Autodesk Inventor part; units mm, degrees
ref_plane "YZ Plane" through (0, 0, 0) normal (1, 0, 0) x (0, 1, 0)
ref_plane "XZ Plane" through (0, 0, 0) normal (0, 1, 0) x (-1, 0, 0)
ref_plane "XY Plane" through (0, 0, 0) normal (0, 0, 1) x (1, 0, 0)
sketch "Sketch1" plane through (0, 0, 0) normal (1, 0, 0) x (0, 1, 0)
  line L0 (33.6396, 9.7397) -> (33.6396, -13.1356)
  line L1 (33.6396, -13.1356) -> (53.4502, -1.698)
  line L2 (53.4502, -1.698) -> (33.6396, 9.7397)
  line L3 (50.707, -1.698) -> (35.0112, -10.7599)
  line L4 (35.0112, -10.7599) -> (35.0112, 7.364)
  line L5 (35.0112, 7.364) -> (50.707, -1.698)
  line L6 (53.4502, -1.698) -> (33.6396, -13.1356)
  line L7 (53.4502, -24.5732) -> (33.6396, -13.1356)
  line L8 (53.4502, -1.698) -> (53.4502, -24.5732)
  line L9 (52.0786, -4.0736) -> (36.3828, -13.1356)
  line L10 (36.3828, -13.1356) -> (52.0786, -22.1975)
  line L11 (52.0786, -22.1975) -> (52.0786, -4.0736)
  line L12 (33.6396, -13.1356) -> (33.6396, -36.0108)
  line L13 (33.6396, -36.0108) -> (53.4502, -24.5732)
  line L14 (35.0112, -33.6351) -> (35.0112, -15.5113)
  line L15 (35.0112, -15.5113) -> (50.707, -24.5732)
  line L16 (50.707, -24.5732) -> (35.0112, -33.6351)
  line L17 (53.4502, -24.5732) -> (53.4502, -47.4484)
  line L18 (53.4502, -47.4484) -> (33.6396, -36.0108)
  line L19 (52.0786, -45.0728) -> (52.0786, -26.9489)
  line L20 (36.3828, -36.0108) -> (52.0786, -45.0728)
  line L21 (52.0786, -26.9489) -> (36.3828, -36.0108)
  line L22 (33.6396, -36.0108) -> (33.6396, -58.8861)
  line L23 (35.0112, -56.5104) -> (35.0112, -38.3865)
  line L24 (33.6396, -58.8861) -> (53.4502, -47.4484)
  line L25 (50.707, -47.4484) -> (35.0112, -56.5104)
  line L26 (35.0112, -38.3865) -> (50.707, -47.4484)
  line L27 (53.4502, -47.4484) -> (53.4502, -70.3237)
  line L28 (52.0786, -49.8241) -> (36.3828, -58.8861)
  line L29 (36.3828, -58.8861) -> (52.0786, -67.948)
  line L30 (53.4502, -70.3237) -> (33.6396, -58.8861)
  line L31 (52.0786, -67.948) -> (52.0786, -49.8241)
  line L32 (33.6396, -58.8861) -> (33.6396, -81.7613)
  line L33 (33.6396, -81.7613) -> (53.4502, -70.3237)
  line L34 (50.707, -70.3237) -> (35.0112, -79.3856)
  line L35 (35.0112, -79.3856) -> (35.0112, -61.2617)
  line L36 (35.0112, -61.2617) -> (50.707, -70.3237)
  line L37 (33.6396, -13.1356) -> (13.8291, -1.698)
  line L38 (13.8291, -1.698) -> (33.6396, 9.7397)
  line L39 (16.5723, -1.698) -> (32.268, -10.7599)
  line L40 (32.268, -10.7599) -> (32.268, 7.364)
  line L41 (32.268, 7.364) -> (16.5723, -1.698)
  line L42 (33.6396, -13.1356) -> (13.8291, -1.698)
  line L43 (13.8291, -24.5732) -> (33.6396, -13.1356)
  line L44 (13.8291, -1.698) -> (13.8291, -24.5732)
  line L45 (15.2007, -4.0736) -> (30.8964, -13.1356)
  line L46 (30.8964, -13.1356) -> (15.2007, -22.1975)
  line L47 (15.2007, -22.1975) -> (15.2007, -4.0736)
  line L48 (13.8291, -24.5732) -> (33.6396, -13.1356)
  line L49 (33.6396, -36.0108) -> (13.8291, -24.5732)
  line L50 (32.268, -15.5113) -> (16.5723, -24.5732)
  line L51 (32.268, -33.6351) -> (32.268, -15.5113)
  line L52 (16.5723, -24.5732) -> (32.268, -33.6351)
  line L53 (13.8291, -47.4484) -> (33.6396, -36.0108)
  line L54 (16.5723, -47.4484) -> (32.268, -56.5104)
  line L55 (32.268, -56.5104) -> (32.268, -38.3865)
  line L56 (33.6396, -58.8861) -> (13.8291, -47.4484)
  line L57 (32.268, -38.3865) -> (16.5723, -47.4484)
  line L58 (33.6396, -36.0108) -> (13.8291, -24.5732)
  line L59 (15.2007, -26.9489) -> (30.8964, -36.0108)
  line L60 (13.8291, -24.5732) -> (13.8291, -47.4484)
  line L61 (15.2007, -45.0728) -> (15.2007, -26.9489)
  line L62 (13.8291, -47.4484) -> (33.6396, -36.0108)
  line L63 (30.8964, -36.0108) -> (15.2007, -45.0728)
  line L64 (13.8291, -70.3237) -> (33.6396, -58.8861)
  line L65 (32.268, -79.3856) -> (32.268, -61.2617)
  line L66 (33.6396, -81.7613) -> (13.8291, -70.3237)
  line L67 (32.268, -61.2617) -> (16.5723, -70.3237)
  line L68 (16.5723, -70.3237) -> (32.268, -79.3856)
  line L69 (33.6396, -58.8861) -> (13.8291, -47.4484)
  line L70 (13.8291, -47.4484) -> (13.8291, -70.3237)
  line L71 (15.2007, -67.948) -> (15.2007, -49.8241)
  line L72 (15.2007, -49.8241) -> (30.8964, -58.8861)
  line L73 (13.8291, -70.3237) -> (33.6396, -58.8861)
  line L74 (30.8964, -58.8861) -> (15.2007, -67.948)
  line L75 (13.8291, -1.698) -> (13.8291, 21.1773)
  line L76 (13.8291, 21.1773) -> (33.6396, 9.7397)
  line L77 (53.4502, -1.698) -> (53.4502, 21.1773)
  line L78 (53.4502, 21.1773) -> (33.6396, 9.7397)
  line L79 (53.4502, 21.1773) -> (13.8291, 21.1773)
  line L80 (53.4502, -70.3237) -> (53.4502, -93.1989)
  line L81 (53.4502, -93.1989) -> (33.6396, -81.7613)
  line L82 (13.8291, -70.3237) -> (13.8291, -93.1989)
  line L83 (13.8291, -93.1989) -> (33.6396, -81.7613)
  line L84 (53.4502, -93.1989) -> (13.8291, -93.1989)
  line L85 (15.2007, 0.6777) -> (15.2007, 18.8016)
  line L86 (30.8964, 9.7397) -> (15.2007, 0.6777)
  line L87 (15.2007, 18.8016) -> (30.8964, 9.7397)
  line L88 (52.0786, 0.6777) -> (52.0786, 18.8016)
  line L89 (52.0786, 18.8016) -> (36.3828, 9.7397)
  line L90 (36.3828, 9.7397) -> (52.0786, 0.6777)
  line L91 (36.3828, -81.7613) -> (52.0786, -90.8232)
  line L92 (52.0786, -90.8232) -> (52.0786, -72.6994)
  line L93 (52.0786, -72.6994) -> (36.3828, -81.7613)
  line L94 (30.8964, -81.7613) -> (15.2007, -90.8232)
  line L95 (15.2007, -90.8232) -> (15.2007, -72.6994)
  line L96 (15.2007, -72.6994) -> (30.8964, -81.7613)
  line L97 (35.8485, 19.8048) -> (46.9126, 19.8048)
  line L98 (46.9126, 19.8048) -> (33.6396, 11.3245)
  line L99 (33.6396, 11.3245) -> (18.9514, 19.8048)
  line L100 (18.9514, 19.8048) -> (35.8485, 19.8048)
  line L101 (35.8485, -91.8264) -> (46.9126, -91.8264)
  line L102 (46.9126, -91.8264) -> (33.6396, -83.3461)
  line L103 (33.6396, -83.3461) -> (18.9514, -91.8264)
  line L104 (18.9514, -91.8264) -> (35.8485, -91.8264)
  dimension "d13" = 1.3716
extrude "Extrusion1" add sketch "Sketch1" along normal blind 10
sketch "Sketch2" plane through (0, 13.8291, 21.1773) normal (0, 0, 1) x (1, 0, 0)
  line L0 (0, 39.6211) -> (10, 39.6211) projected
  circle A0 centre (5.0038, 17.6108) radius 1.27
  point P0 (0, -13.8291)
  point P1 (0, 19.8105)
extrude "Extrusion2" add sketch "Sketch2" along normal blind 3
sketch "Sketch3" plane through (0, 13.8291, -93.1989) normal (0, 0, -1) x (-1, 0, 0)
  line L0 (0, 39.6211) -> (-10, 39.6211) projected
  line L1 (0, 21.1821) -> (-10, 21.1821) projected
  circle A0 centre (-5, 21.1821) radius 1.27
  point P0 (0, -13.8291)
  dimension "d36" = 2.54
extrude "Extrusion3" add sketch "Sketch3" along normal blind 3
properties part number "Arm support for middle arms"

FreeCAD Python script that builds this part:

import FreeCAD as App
import Part
import Sketcher
from FreeCAD import Vector
Q = App.Units.Quantity


def add_polygon(sketch, points):
    """Adds a closed chain of lines whose ends are joined by coincident constraints."""
    first, n = sketch.GeometryCount, len(points)
    for a, b in zip(points, points[1:] + points[:1]):
        sketch.addGeometry(Part.LineSegment(App.Vector(*a, 0), App.Vector(*b, 0)), False)
    for i in range(n):
        sketch.addConstraint(Sketcher.Constraint("Coincident", first + i, 2, first + (i + 1) % n, 1))

doc = App.newDocument("Part")
body = doc.addObject("PartDesign::Body", "Body")

sketch1 = body.newObject("Sketcher::SketchObject", "Sketch")
sketch1.AttachmentSupport = (doc.getObject("YZ_Plane"), [""])
sketch1.MapMode = "FlatFace"
add_polygon(sketch1, [(53, 21), (14, 21), (14, -93), (53, -93)])
add_polygon(sketch1, [(35, 7), (51, -2), (35, -11)])
add_polygon(sketch1, [(52, 1), (36, 10), (52, 19)])
add_polygon(sketch1, [(52, -4), (52, -22), (36, -13)])
add_polygon(sketch1, [(17, -2), (32, 7), (32, -11)])
add_polygon(sketch1, [(47, 20), (34, 11), (19, 20)])
add_polygon(sketch1, [(35, -34), (35, -16), (51, -25)])
add_polygon(sketch1, [(15, -4), (31, -13), (15, -22)])
add_polygon(sketch1, [(15, 1), (15, 19), (31, 10)])
add_polygon(sketch1, [(52, -45), (36, -36), (52, -27)])
add_polygon(sketch1, [(32, -16), (32, -34), (17, -25)])
add_polygon(sketch1, [(35, -57), (35, -38), (51, -47)])
add_polygon(sketch1, [(15, -27), (31, -36), (15, -45)])
add_polygon(sketch1, [(52, -50), (52, -68), (36, -59)])
add_polygon(sketch1, [(17, -47), (32, -38), (32, -57)])
add_polygon(sketch1, [(51, -70), (35, -79), (35, -61)])
add_polygon(sketch1, [(15, -68), (15, -50), (31, -59)])
add_polygon(sketch1, [(36, -82), (52, -73), (52, -91)])
add_polygon(sketch1, [(32, -79), (17, -70), (32, -61)])
add_polygon(sketch1, [(19, -92), (34, -83), (47, -92)])
add_polygon(sketch1, [(15, -91), (15, -73), (31, -82)])
sketch1.addConstraint(Sketcher.Constraint("Horizontal", 0))
sketch1.addConstraint(Sketcher.Constraint("Vertical", 1))
sketch1.addConstraint(Sketcher.Constraint("Horizontal", 2))
sketch1.addConstraint(Sketcher.Constraint("Vertical", 3))
sketch1.addConstraint(Sketcher.Constraint("Vertical", 6))
sketch1.addConstraint(Sketcher.Constraint("Vertical", 9))
sketch1.addConstraint(Sketcher.Constraint("Vertical", 10))
sketch1.addConstraint(Sketcher.Constraint("Vertical", 14))
sketch1.addConstraint(Sketcher.Constraint("Horizontal", 18))
sketch1.addConstraint(Sketcher.Constraint("Vertical", 19))
sketch1.addConstraint(Sketcher.Constraint("Vertical", 24))
sketch1.addConstraint(Sketcher.Constraint("Vertical", 25))
sketch1.addConstraint(Sketcher.Constraint("Vertical", 30))
sketch1.addConstraint(Sketcher.Constraint("Vertical", 31))
sketch1.addConstraint(Sketcher.Constraint("Vertical", 34))
sketch1.addConstraint(Sketcher.Constraint("Vertical", 39))
sketch1.addConstraint(Sketcher.Constraint("Vertical", 40))
sketch1.addConstraint(Sketcher.Constraint("Vertical", 44))
sketch1.addConstraint(Sketcher.Constraint("Vertical", 47))
sketch1.addConstraint(Sketcher.Constraint("Vertical", 49))
sketch1.addConstraint(Sketcher.Constraint("Vertical", 53))
sketch1.addConstraint(Sketcher.Constraint("Vertical", 57))
sketch1.addConstraint(Sketcher.Constraint("Horizontal", 60))
sketch1.addConstraint(Sketcher.Constraint("Vertical", 61))
sketch1.addConstraint(Sketcher.Constraint("Parallel", 4, 7))
sketch1.addConstraint(Sketcher.Constraint("Parallel", 5, 8))
sketch1.addConstraint(Sketcher.Constraint("Parallel", 7, 11))
sketch1.addConstraint(Sketcher.Constraint("Parallel", 8, 12))
sketch1.addConstraint(Sketcher.Constraint("Parallel", 12, 13))
sketch1.addConstraint(Sketcher.Constraint("Parallel", 11, 15))
sketch1.addConstraint(Sketcher.Constraint("Parallel", 15, 17))
sketch1.addConstraint(Sketcher.Constraint("Parallel", 17, 20))
sketch1.addConstraint(Sketcher.Constraint("Parallel", 13, 21))
sketch1.addConstraint(Sketcher.Constraint("Parallel", 20, 22))
sketch1.addConstraint(Sketcher.Constraint("Parallel", 21, 23))
sketch1.addConstraint(Sketcher.Constraint("Parallel", 22, 26))
sketch1.addConstraint(Sketcher.Constraint("Parallel", 23, 27))
sketch1.addConstraint(Sketcher.Constraint("Parallel", 26, 28))
sketch1.addConstraint(Sketcher.Constraint("Parallel", 27, 29))
sketch1.addConstraint(Sketcher.Constraint("Parallel", 28, 32))
sketch1.addConstraint(Sketcher.Constraint("Parallel", 29, 33))
sketch1.addConstraint(Sketcher.Constraint("Parallel", 32, 35))
sketch1.addConstraint(Sketcher.Constraint("Parallel", 33, 36))
sketch1.addConstraint(Sketcher.Constraint("Parallel", 35, 37))
sketch1.addConstraint(Sketcher.Constraint("Parallel", 36, 38))
sketch1.addConstraint(Sketcher.Constraint("Parallel", 37, 41))
sketch1.addConstraint(Sketcher.Constraint("Parallel", 38, 42))
sketch1.addConstraint(Sketcher.Constraint("Parallel", 42, 43))
sketch1.addConstraint(Sketcher.Constraint("Parallel", 41, 45))
sketch1.addConstraint(Sketcher.Constraint("Parallel", 43, 46))
sketch1.addConstraint(Sketcher.Constraint("Parallel", 45, 48))
sketch1.addConstraint(Sketcher.Constraint("Parallel", 48, 50))
sketch1.addConstraint(Sketcher.Constraint("Parallel", 46, 51))
sketch1.addConstraint(Sketcher.Constraint("Parallel", 51, 52))
sketch1.addConstraint(Sketcher.Constraint("Parallel", 50, 54))
sketch1.addConstraint(Sketcher.Constraint("Parallel", 54, 55))
sketch1.addConstraint(Sketcher.Constraint("Parallel", 52, 56))
sketch1.addConstraint(Sketcher.Constraint("Parallel", 56, 58))
sketch1.addConstraint(Sketcher.Constraint("Parallel", 55, 62))
sketch1.addConstraint(Sketcher.Constraint("Parallel", 58, 63))
sketch1.addConstraint(Sketcher.Constraint("Horizontal", 6, 2, 13, 2))
sketch1.addConstraint(Sketcher.Constraint("Horizontal", 5, 2, 14, 2))
sketch1.addConstraint(Sketcher.Constraint("Horizontal", 4, 2, 15, 2))
sketch1.addConstraint(Sketcher.Constraint("Horizontal", 11, 2, 22, 2))
sketch1.addConstraint(Sketcher.Constraint("Horizontal", 10, 2, 23, 2))
sketch1.addConstraint(Sketcher.Constraint("Horizontal", 8, 2, 25, 2))
sketch1.addConstraint(Sketcher.Constraint("Horizontal", 7, 2, 26, 2))
sketch1.addConstraint(Sketcher.Constraint("Horizontal", 21, 2, 31, 2))
sketch1.addConstraint(Sketcher.Constraint("Horizontal", 20, 2, 32, 2))
sketch1.addConstraint(Sketcher.Constraint("Horizontal", 28, 2, 37, 2))
sketch1.addConstraint(Sketcher.Constraint("Horizontal", 30, 2, 38, 2))
sketch1.addConstraint(Sketcher.Constraint("Horizontal", 34, 2, 43, 2))
sketch1.addConstraint(Sketcher.Constraint("Horizontal", 36, 2, 44, 2))
sketch1.addConstraint(Sketcher.Constraint("Horizontal", 42, 2, 49, 2))
sketch1.addConstraint(Sketcher.Constraint("Horizontal", 41, 2, 50, 2))
sketch1.addConstraint(Sketcher.Constraint("Horizontal", 48, 2, 55, 2))
sketch1.addConstraint(Sketcher.Constraint("Horizontal", 47, 2, 56, 2))
sketch1.addConstraint(Sketcher.Constraint("Horizontal", 52, 2, 61, 2))
sketch1.addConstraint(Sketcher.Constraint("Horizontal", 54, 2, 62, 2))
sketch1.addConstraint(Sketcher.Constraint("Vertical", 9, 2, 10, 2))
sketch1.addConstraint(Sketcher.Constraint("Vertical", 7, 2, 11, 2))
sketch1.addConstraint(Sketcher.Constraint("Vertical", 6, 2, 19, 2))
sketch1.addConstraint(Sketcher.Constraint("Vertical", 4, 2, 20, 2))
sketch1.addConstraint(Sketcher.Constraint("Vertical", 24, 2, 25, 2))
sketch1.addConstraint(Sketcher.Constraint("Vertical", 11, 2, 28, 2))
sketch1.addConstraint(Sketcher.Constraint("Vertical", 12, 2, 29, 2))
sketch1.addConstraint(Sketcher.Constraint("Vertical", 14, 2, 31, 2))
sketch1.addConstraint(Sketcher.Constraint("Vertical", 21, 2, 34, 2))
sketch1.addConstraint(Sketcher.Constraint("Vertical", 20, 2, 35, 2))
sketch1.addConstraint(Sketcher.Constraint("Vertical", 26, 2, 37, 2))
sketch1.addConstraint(Sketcher.Constraint("Vertical", 30, 2, 40, 2))
sketch1.addConstraint(Sketcher.Constraint("Vertical", 28, 2, 41, 2))
sketch1.addConstraint(Sketcher.Constraint("Vertical", 33, 2, 43, 2))
sketch1.addConstraint(Sketcher.Constraint("Vertical", 36, 2, 46, 2))
sketch1.addConstraint(Sketcher.Constraint("Vertical", 35, 2, 48, 2))
sketch1.addConstraint(Sketcher.Constraint("Vertical", 39, 2, 49, 2))
sketch1.addConstraint(Sketcher.Constraint("Vertical", 42, 2, 52, 2))
sketch1.addConstraint(Sketcher.Constraint("Vertical", 41, 2, 54, 2))
sketch1.addConstraint(Sketcher.Constraint("Vertical", 45, 2, 55, 2))
sketch1.addConstraint(Sketcher.Constraint("Vertical", 16, 2, 58, 2))
sketch1.addConstraint(Sketcher.Constraint("Vertical", 18, 2, 59, 2))
sketch1.addConstraint(Sketcher.Constraint("Vertical", 17, 2, 60, 2))
sketch1.addConstraint(Sketcher.Constraint("Vertical", 51, 2, 61, 2))
sketch1.addConstraint(Sketcher.Constraint("Equal", 6, 9))
sketch1.addConstraint(Sketcher.Constraint("Angle", 4, Q("-30 deg")))
sketch1.addConstraint(Sketcher.Constraint("DistanceY", 1, 2, 1, 1, Q("4.503 in")))
sketch1.addConstraint(Sketcher.Constraint("Distance", 16, Q("0.6201 in")))
sketch1.addConstraint(Sketcher.Constraint("DistanceX", 0, 2, 0, 1, Q("39.621 mm")))
sketch1.addConstraint(Sketcher.Constraint("DistanceX", 18, 1, 18, 2, Q("27.9612 mm")))
sketch1.addConstraint(Sketcher.Constraint("DistanceY", 6, 1, 6, 2, Q("18.124 mm")))
sketch1.addConstraint(Sketcher.Constraint("DistanceX", -1, 1, 5, 2, Q("1.3784 in")))
sketch1.addConstraint(Sketcher.Constraint("DistanceX", -1, 1, 7, 2, Q("1.4324 in")))
sketch1.addConstraint(Sketcher.Constraint("DistanceX", -1, 1, 13, 2, Q("1.2704 in")))
sketch1.addConstraint(Sketcher.Constraint("DistanceX", -1, 1, 16, 2, Q("1.3244 in")))
sketch1.addConstraint(Sketcher.Constraint("DistanceX", -1, 1, 22, 2, Q("1.2164 in")))
sketch1.addConstraint(Sketcher.Constraint("DistanceX", -1, 1, 0, 2, Q("13.829 mm")))
sketch1.addConstraint(Sketcher.Constraint("DistanceY", -1, 1, 0, 2, Q("21.1773 mm")))
sketch1.addConstraint(Sketcher.Constraint("DistanceY", 4, 2, -1, 1, Q("1.698 mm")))
sketch1.addConstraint(Sketcher.Constraint("DistanceY", -1, 1, 7, 2, Q("9.7397 mm")))
sketch1.addConstraint(Sketcher.Constraint("DistanceY", 10, 2, -1, 1, Q("22.1975 mm")))
sketch1.addConstraint(Sketcher.Constraint("DistanceY", -1, 1, 16, 2, Q("11.3245 mm")))
sketch1.addConstraint(Sketcher.Constraint("DistanceY", 19, 2, -1, 1, Q("15.5113 mm")))
sketch1.addConstraint(Sketcher.Constraint("DistanceY", 28, 2, -1, 1, Q("36.0108 mm")))
sketch1.addConstraint(Sketcher.Constraint("DistanceY", 34, 2, -1, 1, Q("38.3865 mm")))
sketch1.addConstraint(Sketcher.Constraint("DistanceY", 40, 2, -1, 1, Q("67.948 mm")))
sketch1.addConstraint(Sketcher.Constraint("DistanceY", 46, 2, -1, 1, Q("79.3856 mm")))
sketch1.addConstraint(Sketcher.Constraint("DistanceY", 52, 2, -1, 1, Q("72.6994 mm")))
sketch1.addConstraint(Sketcher.Constraint("DistanceY", 58, 2, -1, 1, Q("83.346 mm")))
pad1 = body.newObject("PartDesign::Pad", "Pad")
pad1.Profile = sketch1
pad1.Length = Q("0.3937008 in")

sketch2 = body.newObject("Sketcher::SketchObject", "Sketch001")
sketch2.AttachmentSupport = (doc.getObject("XY_Plane"), [""])
sketch2.MapMode = "FlatFace"
sketch2.AttachmentOffset = App.Placement(Vector(0, 0, 21.1773), App.Rotation())
sketch2.addGeometry(Part.Circle(Vector(5, 31.4, 0), Vector(0, 0, 1), 1.3), False)
sketch2.addConstraint(Sketcher.Constraint("Diameter", 0, Q("0.1 in")))
sketch2.addConstraint(Sketcher.Constraint("DistanceX", -1, 1, 0, 3, Q("0.197 in")))
sketch2.addConstraint(Sketcher.Constraint("DistanceY", -1, 1, 0, 3, Q("1.2378 in")))
pad2 = body.newObject("PartDesign::Pad", "Pad001")
pad2.Profile = sketch2
pad2.Length = Q("0.1181102 in")

sketch3 = body.newObject("Sketcher::SketchObject", "Sketch002")
sketch3.AttachmentSupport = (doc.getObject("XY_Plane"), [""])
sketch3.MapMode = "FlatFace"
sketch3.AttachmentOffset = App.Placement(Vector(0, 0, -93.1989), App.Rotation())
sketch3.addGeometry(Part.Circle(Vector(5, 35, 0), Vector(0, 0, 1), 1.3), False)
sketch3.addConstraint(Sketcher.Constraint("Diameter", 0, Q("0.1 in")))
sketch3.addConstraint(Sketcher.Constraint("DistanceY", -1, 1, 0, 3, Q("1.3784 in")))
sketch3.addConstraint(Sketcher.Constraint("DistanceX", -1, 1, 0, 3, Q("5 mm")))
pad3 = body.newObject("PartDesign::Pad", "Pad002")
pad3.Profile = sketch3
pad3.Length = Q("0.1181102 in")
pad3.Reversed = True

doc.recompute()
